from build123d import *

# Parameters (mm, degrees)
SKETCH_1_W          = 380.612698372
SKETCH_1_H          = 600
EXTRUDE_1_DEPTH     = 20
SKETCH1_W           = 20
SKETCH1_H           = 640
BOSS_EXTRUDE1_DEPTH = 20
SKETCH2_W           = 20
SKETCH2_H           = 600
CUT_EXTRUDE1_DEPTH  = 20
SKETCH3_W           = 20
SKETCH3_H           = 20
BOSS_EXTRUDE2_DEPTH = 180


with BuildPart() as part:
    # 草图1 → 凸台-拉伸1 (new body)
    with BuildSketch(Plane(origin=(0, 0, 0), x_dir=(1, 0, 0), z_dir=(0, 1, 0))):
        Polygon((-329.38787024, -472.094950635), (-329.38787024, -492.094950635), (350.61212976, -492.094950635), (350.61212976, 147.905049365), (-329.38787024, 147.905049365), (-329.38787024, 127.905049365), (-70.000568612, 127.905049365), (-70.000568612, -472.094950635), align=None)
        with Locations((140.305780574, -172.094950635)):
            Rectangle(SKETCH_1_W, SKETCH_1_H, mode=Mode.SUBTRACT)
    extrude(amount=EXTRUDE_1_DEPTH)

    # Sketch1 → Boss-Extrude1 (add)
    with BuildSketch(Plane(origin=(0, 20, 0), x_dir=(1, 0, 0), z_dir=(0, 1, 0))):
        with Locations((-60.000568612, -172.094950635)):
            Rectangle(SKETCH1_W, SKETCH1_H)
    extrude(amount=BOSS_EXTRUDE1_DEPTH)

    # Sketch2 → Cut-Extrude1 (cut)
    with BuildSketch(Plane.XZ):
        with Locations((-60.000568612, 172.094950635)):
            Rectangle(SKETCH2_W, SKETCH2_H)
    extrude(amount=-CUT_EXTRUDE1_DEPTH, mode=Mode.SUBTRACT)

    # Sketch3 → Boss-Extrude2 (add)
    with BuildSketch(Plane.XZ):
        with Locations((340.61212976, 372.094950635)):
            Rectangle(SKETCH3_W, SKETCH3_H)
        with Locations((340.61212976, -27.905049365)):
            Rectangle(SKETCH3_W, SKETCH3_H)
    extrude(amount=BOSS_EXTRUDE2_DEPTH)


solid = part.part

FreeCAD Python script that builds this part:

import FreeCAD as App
import Part
import Sketcher
from FreeCAD import Vector
Q = App.Units.Quantity


def add_polygon(sketch, points):
    """Adds a closed chain of lines whose ends are joined by coincident constraints."""
    first, n = sketch.GeometryCount, len(points)
    for a, b in zip(points, points[1:] + points[:1]):
        sketch.addGeometry(Part.LineSegment(App.Vector(*a, 0), App.Vector(*b, 0)), False)
    for i in range(n):
        sketch.addConstraint(Sketcher.Constraint("Coincident", first + i, 2, first + (i + 1) % n, 1))

doc = App.newDocument("Part")
body = doc.addObject("PartDesign::Body", "Body")

sketch1 = body.newObject("Sketcher::SketchObject", "Sketch")
sketch1.AttachmentSupport = (doc.getObject("XZ_Plane"), [""])
sketch1.MapMode = "FlatFace"
add_polygon(sketch1, [(-329, 472), (-329, 492), (351, 492), (351, -148), (-329, -148), (-329, -128), (-70, -128), (-70, 472)])
add_polygon(sketch1, [(331, 472), (-50, 472), (-50, -128), (331, -128)])
sketch1.addConstraint([
    Sketcher.Constraint("Vertical", 0),
    Sketcher.Constraint("Horizontal", 1),
    Sketcher.Constraint("Vertical", 2),
    Sketcher.Constraint("Horizontal", 3),
    Sketcher.Constraint("Vertical", 4),
    Sketcher.Constraint("Horizontal", 5),
    Sketcher.Constraint("Vertical", 6),
    Sketcher.Constraint("Horizontal", 7),
    Sketcher.Constraint("Horizontal", 8),
    Sketcher.Constraint("Vertical", 9),
    Sketcher.Constraint("Horizontal", 10),
    Sketcher.Constraint("Vertical", 11),
    Sketcher.Constraint("Horizontal", 7, 2, 8, 2),
    Sketcher.Constraint("Horizontal", 5, 2, 9, 2),
    Sketcher.Constraint("Vertical", 0, 2, 3, 2),
    Sketcher.Constraint("Equal", 0, 4),
    Sketcher.Constraint("DistanceX", 1, 1, 1, 2, Q("680 mm")),
    Sketcher.Constraint("DistanceY", 0, 1, 0, 2, Q("20 mm")),
    Sketcher.Constraint("DistanceY", 2, 2, 2, 1, Q("640 mm")),
    Sketcher.Constraint("DistanceX", 6, 2, 8, 2, Q("20 mm")),
    Sketcher.Constraint("DistanceX", 10, 2, 2, 2, Q("20 mm")),
    Sketcher.Constraint("DistanceX", 5, 1, 5, 2, Q("259.387302 mm")),
    Sketcher.Constraint("DistanceX", 0, 2, -1, 1, Q("329.38787 mm")),
    Sketcher.Constraint("DistanceY", -1, 1, 0, 2, Q("492.094951 mm")),
])
pad1 = body.newObject("PartDesign::Pad", "Pad")
pad1.Profile = sketch1
pad1.Length = 20
pad1.Reversed = True

sketch2 = body.newObject("Sketcher::SketchObject", "Sketch001")
sketch2.AttachmentSupport = (doc.getObject("XZ_Plane"), [""])
sketch2.MapMode = "FlatFace"
sketch2.AttachmentOffset = App.Placement(Vector(0, 0, -20), App.Rotation())
add_polygon(sketch2, [(-70, -148), (-70, 492), (-50, 492), (-50, -148)])
sketch2.addConstraint([
    Sketcher.Constraint("Vertical", 0),
    Sketcher.Constraint("Horizontal", 1),
    Sketcher.Constraint("Vertical", 2),
    Sketcher.Constraint("Horizontal", 3),
    Sketcher.Constraint("DistanceX", 1, 1, 1, 2, Q("20 mm")),
    Sketcher.Constraint("DistanceY", 0, 1, 0, 2, Q("640 mm")),
    Sketcher.Constraint("DistanceX", 0, 2, -1, 1, Q("70.000569 mm")),
    Sketcher.Constraint("DistanceY", -1, 1, 0, 2, Q("492.094951 mm")),
])
pad2 = body.newObject("PartDesign::Pad", "Pad001")
pad2.Profile = sketch2
pad2.Length = 20
pad2.Reversed = True

sketch3 = body.newObject("Sketcher::SketchObject", "Sketch002")
sketch3.AttachmentSupport = (doc.getObject("XZ_Plane"), [""])
sketch3.MapMode = "FlatFace"
add_polygon(sketch3, [(-70, 472), (-70, -128), (-50, -128), (-50, 472)])
sketch3.addConstraint([
    Sketcher.Constraint("Vertical", 0),
    Sketcher.Constraint("Horizontal", 1),
    Sketcher.Constraint("Vertical", 2),
    Sketcher.Constraint("Horizontal", 3),
    Sketcher.Constraint("DistanceX", 1, 1, 1, 2, Q("20 mm")),
    Sketcher.Constraint("DistanceY", 0, 2, 0, 1, Q("600 mm")),
    Sketcher.Constraint("DistanceX", 0, 2, -1, 1, Q("70.000569 mm")),
    Sketcher.Constraint("DistanceY", 0, 2, -1, 1, Q("127.905049 mm")),
])
pocket1 = body.newObject("PartDesign::Pocket", "Pocket")
pocket1.Profile = sketch3
pocket1.Length = 20

sketch4 = body.newObject("Sketcher::SketchObject", "Sketch003")
sketch4.AttachmentSupport = (doc.getObject("XZ_Plane"), [""])
sketch4.MapMode = "FlatFace"
add_polygon(sketch4, [(331, 382), (331, 362), (351, 362), (351, 382)])
add_polygon(sketch4, [(331, -18), (331, -38), (351, -38), (351, -18)])
sketch4.addConstraint([
    Sketcher.Constraint("Vertical", 0),
    Sketcher.Constraint("Horizontal", 1),
    Sketcher.Constraint("Vertical", 2),
    Sketcher.Constraint("Horizontal", 3),
    Sketcher.Constraint("Vertical", 4),
    Sketcher.Constraint("Horizontal", 5),
    Sketcher.Constraint("Vertical", 6),
    Sketcher.Constraint("Horizontal", 7),
    Sketcher.Constraint("Vertical", 3, 2, 4, 2),
    Sketcher.Constraint("Vertical", 2, 2, 5, 2),
    Sketcher.Constraint("Equal", 7, 0),
    Sketcher.Constraint("Equal", 2, 4),
    Sketcher.Constraint("DistanceX", 1, 1, 1, 2, Q("20 mm")),
    Sketcher.Constraint("DistanceY", 4, 2, 0, 2, Q("400 mm")),
    Sketcher.Constraint("DistanceX", -1, 1, 0, 2, Q("330.61213 mm")),
    Sketcher.Constraint("DistanceY", -1, 1, 0, 2, Q("362.094951 mm")),
])
pad3 = body.newObject("PartDesign::Pad", "Pad002")
pad3.Profile = sketch4
pad3.Length = 180

doc.recompute()
